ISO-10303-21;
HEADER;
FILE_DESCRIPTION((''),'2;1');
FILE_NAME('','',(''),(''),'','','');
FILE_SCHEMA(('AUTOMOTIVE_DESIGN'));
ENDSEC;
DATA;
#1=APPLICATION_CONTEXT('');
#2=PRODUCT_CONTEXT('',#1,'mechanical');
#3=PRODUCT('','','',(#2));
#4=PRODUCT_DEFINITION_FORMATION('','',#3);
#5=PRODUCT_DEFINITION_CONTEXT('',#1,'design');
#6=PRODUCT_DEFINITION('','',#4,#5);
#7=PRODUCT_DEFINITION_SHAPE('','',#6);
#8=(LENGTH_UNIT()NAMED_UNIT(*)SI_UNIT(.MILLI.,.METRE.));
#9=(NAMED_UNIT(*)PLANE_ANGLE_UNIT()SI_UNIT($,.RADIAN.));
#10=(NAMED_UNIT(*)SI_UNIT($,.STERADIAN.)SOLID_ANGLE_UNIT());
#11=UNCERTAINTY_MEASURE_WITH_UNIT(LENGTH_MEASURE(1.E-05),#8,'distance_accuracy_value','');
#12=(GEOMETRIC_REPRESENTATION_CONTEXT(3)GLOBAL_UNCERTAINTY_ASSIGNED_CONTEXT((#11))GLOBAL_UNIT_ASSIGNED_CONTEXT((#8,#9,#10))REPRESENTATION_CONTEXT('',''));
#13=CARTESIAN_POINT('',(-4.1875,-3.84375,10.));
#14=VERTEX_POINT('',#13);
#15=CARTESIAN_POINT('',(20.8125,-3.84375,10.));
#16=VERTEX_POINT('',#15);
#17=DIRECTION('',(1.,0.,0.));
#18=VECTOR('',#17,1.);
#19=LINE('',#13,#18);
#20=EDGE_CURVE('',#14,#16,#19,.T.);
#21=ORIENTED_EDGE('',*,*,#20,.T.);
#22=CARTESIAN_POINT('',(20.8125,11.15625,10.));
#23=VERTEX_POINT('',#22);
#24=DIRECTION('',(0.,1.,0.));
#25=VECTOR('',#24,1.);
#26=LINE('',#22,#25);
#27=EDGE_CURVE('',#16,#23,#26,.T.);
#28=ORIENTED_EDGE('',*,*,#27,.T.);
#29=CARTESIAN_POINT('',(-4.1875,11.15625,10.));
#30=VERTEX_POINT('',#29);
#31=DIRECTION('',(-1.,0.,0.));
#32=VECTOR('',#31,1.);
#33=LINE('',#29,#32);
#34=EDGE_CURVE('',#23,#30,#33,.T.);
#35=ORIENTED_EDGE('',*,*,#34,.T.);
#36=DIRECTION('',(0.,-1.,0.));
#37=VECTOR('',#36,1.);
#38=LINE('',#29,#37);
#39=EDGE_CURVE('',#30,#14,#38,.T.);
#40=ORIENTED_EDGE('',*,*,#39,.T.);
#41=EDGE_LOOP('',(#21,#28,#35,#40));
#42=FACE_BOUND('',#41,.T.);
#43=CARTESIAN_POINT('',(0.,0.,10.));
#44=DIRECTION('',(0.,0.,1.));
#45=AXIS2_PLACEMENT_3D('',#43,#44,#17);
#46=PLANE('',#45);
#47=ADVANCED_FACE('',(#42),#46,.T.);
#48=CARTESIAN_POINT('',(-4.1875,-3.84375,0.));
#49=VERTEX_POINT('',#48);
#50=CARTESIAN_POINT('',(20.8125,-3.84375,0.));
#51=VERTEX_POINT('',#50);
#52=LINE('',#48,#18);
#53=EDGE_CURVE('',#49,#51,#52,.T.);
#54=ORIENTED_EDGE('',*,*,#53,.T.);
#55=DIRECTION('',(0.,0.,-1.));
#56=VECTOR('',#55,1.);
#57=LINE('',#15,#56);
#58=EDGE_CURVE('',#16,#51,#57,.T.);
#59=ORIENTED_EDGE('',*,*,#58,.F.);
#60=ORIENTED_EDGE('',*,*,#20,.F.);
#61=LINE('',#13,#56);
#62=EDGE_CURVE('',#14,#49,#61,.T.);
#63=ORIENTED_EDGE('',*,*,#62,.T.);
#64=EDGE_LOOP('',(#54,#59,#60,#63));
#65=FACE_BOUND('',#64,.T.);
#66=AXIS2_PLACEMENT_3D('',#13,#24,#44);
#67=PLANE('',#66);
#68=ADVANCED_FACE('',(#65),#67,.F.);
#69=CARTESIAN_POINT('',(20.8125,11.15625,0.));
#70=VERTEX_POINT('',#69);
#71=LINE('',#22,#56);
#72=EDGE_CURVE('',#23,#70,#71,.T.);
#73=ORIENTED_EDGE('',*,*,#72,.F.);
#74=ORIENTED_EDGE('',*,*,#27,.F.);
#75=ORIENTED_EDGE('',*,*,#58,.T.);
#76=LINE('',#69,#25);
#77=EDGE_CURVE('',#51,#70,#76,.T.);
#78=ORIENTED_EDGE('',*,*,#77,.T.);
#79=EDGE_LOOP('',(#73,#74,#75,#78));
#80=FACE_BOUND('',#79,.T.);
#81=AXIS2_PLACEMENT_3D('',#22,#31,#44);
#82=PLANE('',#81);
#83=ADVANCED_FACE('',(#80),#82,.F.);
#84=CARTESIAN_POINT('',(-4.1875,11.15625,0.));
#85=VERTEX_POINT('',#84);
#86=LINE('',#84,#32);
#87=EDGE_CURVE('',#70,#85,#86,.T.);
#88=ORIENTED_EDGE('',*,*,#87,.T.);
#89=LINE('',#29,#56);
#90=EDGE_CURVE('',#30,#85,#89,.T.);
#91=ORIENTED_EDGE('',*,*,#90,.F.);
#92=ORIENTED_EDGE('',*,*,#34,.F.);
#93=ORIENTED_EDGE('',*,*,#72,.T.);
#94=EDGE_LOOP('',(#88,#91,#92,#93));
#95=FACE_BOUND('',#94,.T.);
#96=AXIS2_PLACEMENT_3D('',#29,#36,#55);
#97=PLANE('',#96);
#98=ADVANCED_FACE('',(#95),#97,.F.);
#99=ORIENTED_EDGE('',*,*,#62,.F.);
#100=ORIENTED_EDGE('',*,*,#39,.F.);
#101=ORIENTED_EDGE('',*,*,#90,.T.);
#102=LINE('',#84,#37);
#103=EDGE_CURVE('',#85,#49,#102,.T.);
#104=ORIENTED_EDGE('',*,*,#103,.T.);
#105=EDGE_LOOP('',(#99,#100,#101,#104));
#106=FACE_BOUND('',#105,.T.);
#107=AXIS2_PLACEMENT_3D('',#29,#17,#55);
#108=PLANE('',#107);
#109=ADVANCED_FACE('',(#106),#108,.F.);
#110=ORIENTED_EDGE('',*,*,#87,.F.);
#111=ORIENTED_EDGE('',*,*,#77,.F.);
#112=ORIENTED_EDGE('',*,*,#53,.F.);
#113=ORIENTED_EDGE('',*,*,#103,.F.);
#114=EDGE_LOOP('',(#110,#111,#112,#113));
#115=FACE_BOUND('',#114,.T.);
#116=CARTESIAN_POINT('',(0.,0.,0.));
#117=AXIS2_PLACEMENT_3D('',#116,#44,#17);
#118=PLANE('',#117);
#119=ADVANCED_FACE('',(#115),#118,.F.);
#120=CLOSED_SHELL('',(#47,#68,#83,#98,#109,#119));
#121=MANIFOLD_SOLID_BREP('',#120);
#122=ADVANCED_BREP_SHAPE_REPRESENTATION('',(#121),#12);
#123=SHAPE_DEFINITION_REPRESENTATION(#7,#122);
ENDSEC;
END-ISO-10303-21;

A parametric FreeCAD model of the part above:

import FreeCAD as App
import Part
import Sketcher


def add_polygon(sketch, points):
    """Adds a closed chain of lines whose ends are joined by coincident constraints."""
    first, n = sketch.GeometryCount, len(points)
    for a, b in zip(points, points[1:] + points[:1]):
        sketch.addGeometry(Part.LineSegment(App.Vector(*a, 0), App.Vector(*b, 0)), False)
    for i in range(n):
        sketch.addConstraint(Sketcher.Constraint("Coincident", first + i, 2, first + (i + 1) % n, 1))

doc = App.newDocument("Part")
body = doc.addObject("PartDesign::Body", "Body")

# Sketch on XY plane
sketch1 = body.newObject("Sketcher::SketchObject", "Sketch")
sketch1.AttachmentSupport = (doc.getObject("XY_Plane"), [""])
sketch1.MapMode = "FlatFace"
add_polygon(sketch1, [(-4.1875, 11.15625), (-4.1875, -3.84375), (20.8125, -3.84375), (20.8125, 11.15625)])  # lines 0-3
sketch1.addConstraint([
    Sketcher.Constraint("Vertical", 0),
    Sketcher.Constraint("Horizontal", 1),
    Sketcher.Constraint("Vertical", 2),
    Sketcher.Constraint("Horizontal", 3),
    Sketcher.Constraint("DistanceX", 1, 1, 1, 2, 25.0),
    Sketcher.Constraint("DistanceY", 0, 2, 0, 1, 15.0),
    Sketcher.Constraint("DistanceX", 0, 2, -1, 1, 4.1875),
    Sketcher.Constraint("DistanceY", 0, 2, -1, 1, 3.84375),
])
pad1 = body.newObject("PartDesign::Pad", "Pad")
pad1.Profile = sketch1
pad1.Length = 10

doc.recompute()
